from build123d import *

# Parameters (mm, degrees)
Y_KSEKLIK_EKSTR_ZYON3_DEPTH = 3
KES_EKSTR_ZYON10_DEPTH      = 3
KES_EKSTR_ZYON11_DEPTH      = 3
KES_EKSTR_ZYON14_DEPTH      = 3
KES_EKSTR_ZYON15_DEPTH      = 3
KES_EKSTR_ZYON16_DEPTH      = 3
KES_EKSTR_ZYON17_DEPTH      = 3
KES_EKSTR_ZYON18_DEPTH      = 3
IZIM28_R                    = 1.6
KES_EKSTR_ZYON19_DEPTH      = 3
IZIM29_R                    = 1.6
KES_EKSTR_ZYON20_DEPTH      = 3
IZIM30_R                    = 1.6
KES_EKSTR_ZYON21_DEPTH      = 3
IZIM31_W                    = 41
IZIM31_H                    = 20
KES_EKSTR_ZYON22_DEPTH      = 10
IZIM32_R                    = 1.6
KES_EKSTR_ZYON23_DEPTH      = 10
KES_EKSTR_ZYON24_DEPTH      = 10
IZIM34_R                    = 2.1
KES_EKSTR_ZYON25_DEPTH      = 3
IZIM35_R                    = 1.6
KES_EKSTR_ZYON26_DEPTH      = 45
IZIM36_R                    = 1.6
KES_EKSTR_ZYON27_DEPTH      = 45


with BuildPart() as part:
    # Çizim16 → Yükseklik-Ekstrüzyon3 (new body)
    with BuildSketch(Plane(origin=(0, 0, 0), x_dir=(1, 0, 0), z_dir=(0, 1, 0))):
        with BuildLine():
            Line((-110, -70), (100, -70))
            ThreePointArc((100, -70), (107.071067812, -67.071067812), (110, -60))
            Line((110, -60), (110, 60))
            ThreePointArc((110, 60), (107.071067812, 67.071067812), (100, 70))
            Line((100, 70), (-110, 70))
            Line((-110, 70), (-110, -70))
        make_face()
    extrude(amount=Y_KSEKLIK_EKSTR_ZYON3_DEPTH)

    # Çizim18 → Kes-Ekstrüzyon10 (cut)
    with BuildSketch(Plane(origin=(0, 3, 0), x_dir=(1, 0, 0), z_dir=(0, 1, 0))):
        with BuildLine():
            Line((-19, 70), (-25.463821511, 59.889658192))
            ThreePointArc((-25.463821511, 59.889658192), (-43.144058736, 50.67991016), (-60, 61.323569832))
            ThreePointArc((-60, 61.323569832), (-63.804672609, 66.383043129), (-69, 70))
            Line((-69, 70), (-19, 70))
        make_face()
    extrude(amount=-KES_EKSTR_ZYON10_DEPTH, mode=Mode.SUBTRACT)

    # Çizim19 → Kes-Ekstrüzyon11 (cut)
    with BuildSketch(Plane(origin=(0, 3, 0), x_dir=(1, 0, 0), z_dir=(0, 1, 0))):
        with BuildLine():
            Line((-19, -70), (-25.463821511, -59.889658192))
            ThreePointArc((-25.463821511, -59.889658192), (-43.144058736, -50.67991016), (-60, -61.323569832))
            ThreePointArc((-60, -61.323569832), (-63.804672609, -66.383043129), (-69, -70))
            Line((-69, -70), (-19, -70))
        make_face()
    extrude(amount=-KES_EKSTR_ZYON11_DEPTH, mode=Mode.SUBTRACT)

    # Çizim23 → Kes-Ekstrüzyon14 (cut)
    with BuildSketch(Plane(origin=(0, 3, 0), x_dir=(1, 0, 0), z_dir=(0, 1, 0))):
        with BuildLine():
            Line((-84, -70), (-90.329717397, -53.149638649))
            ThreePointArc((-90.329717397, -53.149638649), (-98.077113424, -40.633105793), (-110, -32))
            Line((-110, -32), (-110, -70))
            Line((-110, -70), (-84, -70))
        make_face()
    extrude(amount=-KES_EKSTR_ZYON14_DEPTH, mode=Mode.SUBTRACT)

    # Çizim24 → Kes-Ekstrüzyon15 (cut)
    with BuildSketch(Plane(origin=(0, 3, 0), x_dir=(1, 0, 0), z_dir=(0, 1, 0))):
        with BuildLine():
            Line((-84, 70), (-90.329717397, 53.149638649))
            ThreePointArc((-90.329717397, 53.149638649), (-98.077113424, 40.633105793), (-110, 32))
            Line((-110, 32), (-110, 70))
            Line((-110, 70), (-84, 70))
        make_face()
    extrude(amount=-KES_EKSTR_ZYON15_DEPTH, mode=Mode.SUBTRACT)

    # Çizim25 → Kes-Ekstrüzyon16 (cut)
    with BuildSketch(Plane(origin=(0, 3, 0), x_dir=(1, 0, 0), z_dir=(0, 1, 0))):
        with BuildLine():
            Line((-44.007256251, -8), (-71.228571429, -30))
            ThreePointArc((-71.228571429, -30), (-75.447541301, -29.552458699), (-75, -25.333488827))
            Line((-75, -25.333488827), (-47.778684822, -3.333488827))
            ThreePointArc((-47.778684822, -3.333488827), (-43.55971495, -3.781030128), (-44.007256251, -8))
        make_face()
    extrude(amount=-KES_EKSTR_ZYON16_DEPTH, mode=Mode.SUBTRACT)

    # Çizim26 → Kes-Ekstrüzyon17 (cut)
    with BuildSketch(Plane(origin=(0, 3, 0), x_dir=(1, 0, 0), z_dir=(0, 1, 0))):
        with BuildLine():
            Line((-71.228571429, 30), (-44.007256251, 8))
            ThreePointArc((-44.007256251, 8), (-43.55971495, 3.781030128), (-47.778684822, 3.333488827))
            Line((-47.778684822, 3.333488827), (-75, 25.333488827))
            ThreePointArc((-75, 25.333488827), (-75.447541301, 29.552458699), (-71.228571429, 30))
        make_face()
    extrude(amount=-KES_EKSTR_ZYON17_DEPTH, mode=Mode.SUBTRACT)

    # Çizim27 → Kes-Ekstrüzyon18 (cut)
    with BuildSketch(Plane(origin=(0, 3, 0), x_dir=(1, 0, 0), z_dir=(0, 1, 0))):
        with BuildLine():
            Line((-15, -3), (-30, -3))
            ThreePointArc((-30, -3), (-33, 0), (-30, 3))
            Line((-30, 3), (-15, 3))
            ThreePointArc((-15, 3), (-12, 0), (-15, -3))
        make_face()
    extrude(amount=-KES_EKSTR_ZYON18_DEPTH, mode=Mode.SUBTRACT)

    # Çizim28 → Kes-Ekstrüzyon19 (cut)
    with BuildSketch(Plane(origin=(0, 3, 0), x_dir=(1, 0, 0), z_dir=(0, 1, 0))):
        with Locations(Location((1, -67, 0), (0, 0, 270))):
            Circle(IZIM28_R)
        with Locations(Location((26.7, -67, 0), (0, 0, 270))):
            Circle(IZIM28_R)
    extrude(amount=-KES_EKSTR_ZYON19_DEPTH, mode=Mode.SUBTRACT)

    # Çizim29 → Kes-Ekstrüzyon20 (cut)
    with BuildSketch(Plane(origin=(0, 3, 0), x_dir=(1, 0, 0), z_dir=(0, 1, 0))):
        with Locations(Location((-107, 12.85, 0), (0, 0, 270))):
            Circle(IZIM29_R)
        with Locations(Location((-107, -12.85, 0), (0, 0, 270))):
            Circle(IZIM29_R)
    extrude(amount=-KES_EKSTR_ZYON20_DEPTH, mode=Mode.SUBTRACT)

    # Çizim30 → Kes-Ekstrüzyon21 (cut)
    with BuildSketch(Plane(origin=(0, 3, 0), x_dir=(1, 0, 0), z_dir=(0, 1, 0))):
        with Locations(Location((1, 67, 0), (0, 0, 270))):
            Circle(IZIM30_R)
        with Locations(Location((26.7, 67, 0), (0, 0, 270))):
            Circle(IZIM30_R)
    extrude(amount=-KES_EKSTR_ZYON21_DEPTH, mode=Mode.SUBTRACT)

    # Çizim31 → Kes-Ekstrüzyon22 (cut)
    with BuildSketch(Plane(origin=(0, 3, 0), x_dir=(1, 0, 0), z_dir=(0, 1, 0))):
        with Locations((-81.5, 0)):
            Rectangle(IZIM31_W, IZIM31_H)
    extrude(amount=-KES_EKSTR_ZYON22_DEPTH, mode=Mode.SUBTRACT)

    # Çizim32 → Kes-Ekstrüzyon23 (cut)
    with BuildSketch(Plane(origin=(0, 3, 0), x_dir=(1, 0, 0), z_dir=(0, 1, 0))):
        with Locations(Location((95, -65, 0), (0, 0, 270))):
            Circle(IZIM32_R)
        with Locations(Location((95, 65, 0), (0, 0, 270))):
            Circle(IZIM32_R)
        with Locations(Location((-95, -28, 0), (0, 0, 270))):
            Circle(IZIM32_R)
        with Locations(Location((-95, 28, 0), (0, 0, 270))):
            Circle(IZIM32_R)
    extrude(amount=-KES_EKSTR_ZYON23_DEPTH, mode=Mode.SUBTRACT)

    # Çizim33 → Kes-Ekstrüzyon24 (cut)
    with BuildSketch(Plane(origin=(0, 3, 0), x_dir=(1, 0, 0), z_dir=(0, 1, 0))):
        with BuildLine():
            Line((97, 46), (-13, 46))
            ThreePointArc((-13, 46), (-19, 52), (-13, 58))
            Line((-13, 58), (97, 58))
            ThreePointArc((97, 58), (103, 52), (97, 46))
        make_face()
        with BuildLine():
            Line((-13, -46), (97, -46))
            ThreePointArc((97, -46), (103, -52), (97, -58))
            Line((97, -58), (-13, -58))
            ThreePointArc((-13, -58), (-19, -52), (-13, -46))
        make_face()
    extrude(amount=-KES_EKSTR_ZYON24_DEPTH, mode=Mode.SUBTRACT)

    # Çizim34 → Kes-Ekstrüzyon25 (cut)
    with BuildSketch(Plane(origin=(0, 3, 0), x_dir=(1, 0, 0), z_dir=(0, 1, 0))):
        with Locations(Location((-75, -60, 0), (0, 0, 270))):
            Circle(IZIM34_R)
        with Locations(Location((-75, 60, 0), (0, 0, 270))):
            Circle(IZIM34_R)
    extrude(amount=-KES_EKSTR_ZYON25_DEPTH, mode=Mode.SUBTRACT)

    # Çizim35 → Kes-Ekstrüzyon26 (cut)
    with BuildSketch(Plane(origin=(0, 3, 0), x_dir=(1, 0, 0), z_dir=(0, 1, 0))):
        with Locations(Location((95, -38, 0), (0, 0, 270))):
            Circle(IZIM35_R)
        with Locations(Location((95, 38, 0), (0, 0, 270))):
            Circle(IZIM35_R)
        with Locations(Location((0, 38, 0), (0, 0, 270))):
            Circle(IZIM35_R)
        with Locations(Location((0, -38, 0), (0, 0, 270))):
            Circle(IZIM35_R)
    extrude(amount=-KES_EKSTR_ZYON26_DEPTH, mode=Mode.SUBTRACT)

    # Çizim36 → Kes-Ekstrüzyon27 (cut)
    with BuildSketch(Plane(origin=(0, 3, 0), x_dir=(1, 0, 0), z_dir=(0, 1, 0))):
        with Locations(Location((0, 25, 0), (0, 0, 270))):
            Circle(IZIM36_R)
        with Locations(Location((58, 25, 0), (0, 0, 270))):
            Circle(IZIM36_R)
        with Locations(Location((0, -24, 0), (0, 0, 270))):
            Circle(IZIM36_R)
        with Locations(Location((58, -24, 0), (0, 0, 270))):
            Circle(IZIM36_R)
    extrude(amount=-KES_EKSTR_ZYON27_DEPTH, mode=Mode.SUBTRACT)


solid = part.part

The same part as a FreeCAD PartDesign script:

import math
import FreeCAD as App
import Part
import Sketcher
from FreeCAD import Vector
Q = App.Units.Quantity


def add_polygon(sketch, points):
    """Adds a closed chain of lines whose ends are joined by coincident constraints."""
    first, n = sketch.GeometryCount, len(points)
    for a, b in zip(points, points[1:] + points[:1]):
        sketch.addGeometry(Part.LineSegment(App.Vector(*a, 0), App.Vector(*b, 0)), False)
    for i in range(n):
        sketch.addConstraint(Sketcher.Constraint("Coincident", first + i, 2, first + (i + 1) % n, 1))

doc = App.newDocument("Part")
body = doc.addObject("PartDesign::Body", "Body")

sketch1 = doc.addObject("Sketcher::SketchObject", "Sketch")
body.addObject(sketch1)
sketch1.AttachmentSupport = (doc.XZ_Plane, [""])
sketch1.MapMode = "FlatFace"
sketch1.addGeometry(Part.LineSegment(Vector(-110, 70, 0), Vector(100, 70, 0)), False)
sketch1.addGeometry(Part.ArcOfCircle(Part.Circle(Vector(100, 60, 0), Vector(0, 0, 1), 10), math.radians(0), math.radians(90)), False)
sketch1.addGeometry(Part.LineSegment(Vector(110, 60, 0), Vector(110, -60, 0)), False)
sketch1.addGeometry(Part.ArcOfCircle(Part.Circle(Vector(100, -60, 0), Vector(0, 0, 1), 10), math.radians(-90), math.radians(0)), False)
sketch1.addGeometry(Part.LineSegment(Vector(100, -70, 0), Vector(-110, -70, 0)), False)
sketch1.addGeometry(Part.LineSegment(Vector(-110, -70, 0), Vector(-110, 70, 0)), False)
sketch1.addConstraint(Sketcher.Constraint("Tangent", 0, 2, 1, 2))
sketch1.addConstraint(Sketcher.Constraint("Tangent", 1, 1, 2, 1))
sketch1.addConstraint(Sketcher.Constraint("Tangent", 2, 2, 3, 2))
sketch1.addConstraint(Sketcher.Constraint("Tangent", 3, 1, 4, 1))
sketch1.addConstraint(Sketcher.Constraint("Coincident", 4, 2, 5, 1))
sketch1.addConstraint(Sketcher.Constraint("Coincident", 5, 2, 0, 1))
sketch1.addConstraint(Sketcher.Constraint("Horizontal", 0))
sketch1.addConstraint(Sketcher.Constraint("Vertical", 2))
sketch1.addConstraint(Sketcher.Constraint("Horizontal", 4))
sketch1.addConstraint(Sketcher.Constraint("Vertical", 5))
sketch1.addConstraint(Sketcher.Constraint("Equal", 1, 3))
sketch1.addConstraint(Sketcher.Constraint("Radius", 1, Q("10 mm")))
sketch1.addConstraint(Sketcher.Constraint("DistanceX", 0, 1, 0, 2, Q("210 mm")))
sketch1.addConstraint(Sketcher.Constraint("DistanceY", 2, 2, 2, 1, Q("120 mm")))
sketch1.addConstraint(Sketcher.Constraint("DistanceX", -1, 1, 1, 3, Q("100 mm")))
sketch1.addConstraint(Sketcher.Constraint("DistanceY", -1, 1, 1, 3, Q("60 mm")))
pad1 = doc.addObject("PartDesign::Pad", "Pad")
body.addObject(pad1)
pad1.Profile = sketch1
pad1.Length = 3
pad1.Reversed = True

sketch2 = doc.addObject("Sketcher::SketchObject", "Sketch001")
body.addObject(sketch2)
sketch2.AttachmentSupport = (doc.XZ_Plane, [""])
sketch2.MapMode = "FlatFace"
sketch2.AttachmentOffset = App.Placement(Vector(0, 0, -3), App.Rotation())
sketch2.addGeometry(Part.LineSegment(Vector(-25, -60, 0), Vector(-19, -70, 0)), False)
sketch2.addGeometry(Part.LineSegment(Vector(-19, -70, 0), Vector(-69, -70, 0)), False)
sketch2.addGeometry(Part.ArcOfCircle(Part.Circle(Vector(-78, -52, 0), Vector(0, 0, 1), 20), math.radians(-64), math.radians(-28)), False)
sketch2.addGeometry(Part.ArcOfCircle(Part.Circle(Vector(-42, -71, 0), Vector(0, 0, 1), 20), math.radians(33), math.radians(152)), False)
sketch2.addConstraint(Sketcher.Constraint("Coincident", 0, 2, 1, 1))
sketch2.addConstraint(Sketcher.Constraint("Coincident", 1, 2, 2, 1))
sketch2.addConstraint(Sketcher.Constraint("Tangent", 2, 2, 3, 2))
sketch2.addConstraint(Sketcher.Constraint("Tangent", 3, 1, 0, 1))
sketch2.addConstraint(Sketcher.Constraint("Horizontal", 1))
sketch2.addConstraint(Sketcher.Constraint("Equal", 2, 3))
sketch2.addConstraint(Sketcher.Constraint("Radius", 2, Q("20 mm")))
sketch2.addConstraint(Sketcher.Constraint("DistanceX", 1, 2, 1, 1, Q("50 mm")))
sketch2.addConstraint(Sketcher.Constraint("Distance", 0, Q("12 mm")))
sketch2.addConstraint(Sketcher.Constraint("DistanceX", 0, 2, -1, 1, Q("19 mm")))
sketch2.addConstraint(Sketcher.Constraint("DistanceY", 0, 2, -1, 1, Q("70 mm")))
sketch2.addConstraint(Sketcher.Constraint("DistanceX", 2, 2, -1, 1, Q("60 mm")))
pocket1 = doc.addObject("PartDesign::Pocket", "Pocket")
body.addObject(pocket1)
pocket1.Profile = sketch2
pocket1.Length = 3
pocket1.Reversed = True

sketch3 = doc.addObject("Sketcher::SketchObject", "Sketch002")
body.addObject(sketch3)
sketch3.AttachmentSupport = (doc.XZ_Plane, [""])
sketch3.MapMode = "FlatFace"
sketch3.AttachmentOffset = App.Placement(Vector(0, 0, -3), App.Rotation())
sketch3.addGeometry(Part.LineSegment(Vector(-19, 70, 0), Vector(-25, 60, 0)), False)
sketch3.addGeometry(Part.ArcOfCircle(Part.Circle(Vector(-42, 71, 0), Vector(0, 0, 1), 20), math.radians(-152), math.radians(-33)), False)
sketch3.addGeometry(Part.ArcOfCircle(Part.Circle(Vector(-78, 52, 0), Vector(0, 0, 1), 20), math.radians(28), math.radians(64)), False)
sketch3.addGeometry(Part.LineSegment(Vector(-69, 70, 0), Vector(-19, 70, 0)), False)
sketch3.addConstraint(Sketcher.Constraint("Tangent", 0, 2, 1, 2))
sketch3.addConstraint(Sketcher.Constraint("Tangent", 1, 1, 2, 1))
sketch3.addConstraint(Sketcher.Constraint("Coincident", 2, 2, 3, 1))
sketch3.addConstraint(Sketcher.Constraint("Coincident", 3, 2, 0, 1))
sketch3.addConstraint(Sketcher.Constraint("Horizontal", 3))
sketch3.addConstraint(Sketcher.Constraint("Equal", 1, 2))
sketch3.addConstraint(Sketcher.Constraint("Radius", 1, Q("20 mm")))
sketch3.addConstraint(Sketcher.Constraint("DistanceX", 3, 1, 3, 2, Q("50 mm")))
sketch3.addConstraint(Sketcher.Constraint("Distance", 0, Q("12 mm")))
sketch3.addConstraint(Sketcher.Constraint("DistanceX", 1, 1, -1, 1, Q("60 mm")))
sketch3.addConstraint(Sketcher.Constraint("DistanceX", 2, 2, -1, 1, Q("69 mm")))
sketch3.addConstraint(Sketcher.Constraint("DistanceY", -1, 1, 2, 2, Q("70 mm")))
pocket2 = doc.addObject("PartDesign::Pocket", "Pocket001")
body.addObject(pocket2)
pocket2.Profile = sketch3
pocket2.Length = 3
pocket2.Reversed = True

sketch4 = doc.addObject("Sketcher::SketchObject", "Sketch003")
body.addObject(sketch4)
sketch4.AttachmentSupport = (doc.XZ_Plane, [""])
sketch4.MapMode = "FlatFace"
sketch4.AttachmentOffset = App.Placement(Vector(0, 0, -3), App.Rotation())
sketch4.addGeometry(Part.LineSegment(Vector(-84, 70, 0), Vector(-90, 53, 0)), False)
sketch4.addGeometry(Part.ArcOfCircle(Part.Circle(Vector(-126, 67, 0), Vector(0, 0, 1), 38), math.radians(-65), math.radians(-21)), False)
sketch4.addGeometry(Part.LineSegment(Vector(-110, 32, 0), Vector(-110, 70, 0)), False)
sketch4.addGeometry(Part.LineSegment(Vector(-110, 70, 0), Vector(-84, 70, 0)), False)
sketch4.addConstraint(Sketcher.Constraint("Tangent", 0, 2, 1, 2))
sketch4.addConstraint(Sketcher.Constraint("Coincident", 1, 1, 2, 1))
sketch4.addConstraint(Sketcher.Constraint("Coincident", 2, 2, 3, 1))
sketch4.addConstraint(Sketcher.Constraint("Coincident", 3, 2, 0, 1))
sketch4.addConstraint(Sketcher.Constraint("Vertical", 2))
sketch4.addConstraint(Sketcher.Constraint("Horizontal", 3))
sketch4.addConstraint(Sketcher.Constraint("Radius", 1, Q("38 mm")))
sketch4.addConstraint(Sketcher.Constraint("DistanceX", 3, 1, 3, 2, Q("26 mm")))
sketch4.addConstraint(Sketcher.Constraint("DistanceY", 2, 1, 2, 2, Q("38 mm")))
sketch4.addConstraint(Sketcher.Constraint("Distance", 0, Q("18 mm")))
sketch4.addConstraint(Sketcher.Constraint("DistanceX", 1, 1, -1, 1, Q("110 mm")))
sketch4.addConstraint(Sketcher.Constraint("DistanceY", -1, 1, 1, 1, Q("32 mm")))
pocket3 = doc.addObject("PartDesign::Pocket", "Pocket002")
body.addObject(pocket3)
pocket3.Profile = sketch4
pocket3.Length = 3
pocket3.Reversed = True

sketch5 = doc.addObject("Sketcher::SketchObject", "Sketch004")
body.addObject(sketch5)
sketch5.AttachmentSupport = (doc.XZ_Plane, [""])
sketch5.MapMode = "FlatFace"
sketch5.AttachmentOffset = App.Placement(Vector(0, 0, -3), App.Rotation())
sketch5.addGeometry(Part.LineSegment(Vector(-90, -53, 0), Vector(-84, -70, 0)), False)
sketch5.addGeometry(Part.LineSegment(Vector(-84, -70, 0), Vector(-110, -70, 0)), False)
sketch5.addGeometry(Part.LineSegment(Vector(-110, -70, 0), Vector(-110, -32, 0)), False)
sketch5.addGeometry(Part.ArcOfCircle(Part.Circle(Vector(-126, -67, 0), Vector(0, 0, 1), 38), math.radians(21), math.radians(65)), False)
sketch5.addConstraint(Sketcher.Constraint("Coincident", 0, 2, 1, 1))
sketch5.addConstraint(Sketcher.Constraint("Coincident", 1, 2, 2, 1))
sketch5.addConstraint(Sketcher.Constraint("Coincident", 2, 2, 3, 2))
sketch5.addConstraint(Sketcher.Constraint("Tangent", 3, 1, 0, 1))
sketch5.addConstraint(Sketcher.Constraint("Horizontal", 1))
sketch5.addConstraint(Sketcher.Constraint("Vertical", 2))
sketch5.addConstraint(Sketcher.Constraint("Radius", 3, Q("38 mm")))
sketch5.addConstraint(Sketcher.Constraint("DistanceX", 1, 2, 1, 1, Q("26 mm")))
sketch5.addConstraint(Sketcher.Constraint("DistanceY", 2, 1, 2, 2, Q("38 mm")))
sketch5.addConstraint(Sketcher.Constraint("Distance", 0, Q("18 mm")))
sketch5.addConstraint(Sketcher.Constraint("DistanceX", 0, 2, -1, 1, Q("84 mm")))
sketch5.addConstraint(Sketcher.Constraint("DistanceY", 0, 2, -1, 1, Q("70 mm")))
pocket4 = doc.addObject("PartDesign::Pocket", "Pocket003")
body.addObject(pocket4)
pocket4.Profile = sketch5
pocket4.Length = 3
pocket4.Reversed = True

sketch6 = doc.addObject("Sketcher::SketchObject", "Sketch005")
body.addObject(sketch6)
sketch6.AttachmentSupport = (doc.XZ_Plane, [""])
sketch6.MapMode = "FlatFace"
sketch6.AttachmentOffset = App.Placement(Vector(0, 0, -3), App.Rotation())
sketch6.addGeometry(Part.LineSegment(Vector(-71.2, 30, 0), Vector(-44, 8, 0)), False)
sketch6.addGeometry(Part.ArcOfCircle(Part.Circle(Vector(-45.9, 5.7, 0), Vector(0, 0, 1), 3), math.radians(-129), math.radians(51)), False)
sketch6.addGeometry(Part.LineSegment(Vector(-47.8, 3.3, 0), Vector(-75, 25.3, 0)), False)
sketch6.addGeometry(Part.ArcOfCircle(Part.Circle(Vector(-73.1, 27.7, 0), Vector(0, 0, 1), 3), math.radians(51), math.radians(231)), False)
sketch6.addConstraint(Sketcher.Constraint("Tangent", 0, 2, 1, 2))
sketch6.addConstraint(Sketcher.Constraint("Tangent", 1, 1, 2, 1))
sketch6.addConstraint(Sketcher.Constraint("Tangent", 2, 2, 3, 2))
sketch6.addConstraint(Sketcher.Constraint("Tangent", 3, 1, 0, 1))
sketch6.addConstraint(Sketcher.Constraint("Equal", 1, 3))
sketch6.addConstraint(Sketcher.Constraint("Radius", 1, Q("3 mm")))
sketch6.addConstraint(Sketcher.Constraint("Distance", 0, Q("35 mm")))
sketch6.addConstraint(Sketcher.Constraint("DistanceY", -1, 1, 0, 2, Q("8 mm")))
sketch6.addConstraint(Sketcher.Constraint("DistanceX", 2, 2, -1, 1, Q("75 mm")))
sketch6.addConstraint(Sketcher.Constraint("DistanceY", -1, 1, 3, 1, Q("30 mm")))
pocket5 = doc.addObject("PartDesign::Pocket", "Pocket004")
body.addObject(pocket5)
pocket5.Profile = sketch6
pocket5.Length = 3
pocket5.Reversed = True

sketch7 = doc.addObject("Sketcher::SketchObject", "Sketch006")
body.addObject(sketch7)
sketch7.AttachmentSupport = (doc.XZ_Plane, [""])
sketch7.MapMode = "FlatFace"
sketch7.AttachmentOffset = App.Placement(Vector(0, 0, -3), App.Rotation())
sketch7.addGeometry(Part.LineSegment(Vector(-44, -8, 0), Vector(-71.2, -30, 0)), False)
sketch7.addGeometry(Part.ArcOfCircle(Part.Circle(Vector(-73.1, -27.7, 0), Vector(0, 0, 1), 3), math.radians(129), math.radians(309)), False)
sketch7.addGeometry(Part.LineSegment(Vector(-75, -25.3, 0), Vector(-47.8, -3.3, 0)), False)
sketch7.addGeometry(Part.ArcOfCircle(Part.Circle(Vector(-45.9, -5.7, 0), Vector(0, 0, 1), 3), math.radians(-51), math.radians(129)), False)
sketch7.addConstraint(Sketcher.Constraint("Tangent", 0, 2, 1, 2))
sketch7.addConstraint(Sketcher.Constraint("Tangent", 1, 1, 2, 1))
sketch7.addConstraint(Sketcher.Constraint("Tangent", 2, 2, 3, 2))
sketch7.addConstraint(Sketcher.Constraint("Tangent", 3, 1, 0, 1))
sketch7.addConstraint(Sketcher.Constraint("Equal", 1, 3))
sketch7.addConstraint(Sketcher.Constraint("Radius", 1, Q("3 mm")))
sketch7.addConstraint(Sketcher.Constraint("Distance", 0, Q("35 mm")))
sketch7.addConstraint(Sketcher.Constraint("DistanceY", 0, 2, -1, 1, Q("30 mm")))
sketch7.addConstraint(Sketcher.Constraint("DistanceX", 1, 1, -1, 1, Q("75 mm")))
sketch7.addConstraint(Sketcher.Constraint("DistanceY", 3, 1, -1, 1, Q("8 mm")))
pocket6 = doc.addObject("PartDesign::Pocket", "Pocket005")
body.addObject(pocket6)
pocket6.Profile = sketch7
pocket6.Length = 3
pocket6.Reversed = True

sketch8 = doc.addObject("Sketcher::SketchObject", "Sketch007")
body.addObject(sketch8)
sketch8.AttachmentSupport = (doc.XZ_Plane, [""])
sketch8.MapMode = "FlatFace"
sketch8.AttachmentOffset = App.Placement(Vector(0, 0, -3), App.Rotation())
sketch8.addGeometry(Part.LineSegment(Vector(-30, 3, 0), Vector(-15, 3, 0)), False)
sketch8.addGeometry(Part.ArcOfCircle(Part.Circle(Vector(-15, 0, 0), Vector(0, 0, 1), 3), math.radians(-90), math.radians(90)), False)
sketch8.addGeometry(Part.LineSegment(Vector(-15, -3, 0), Vector(-30, -3, 0)), False)
sketch8.addGeometry(Part.ArcOfCircle(Part.Circle(Vector(-30, 0, 0), Vector(0, 0, 1), 3), math.radians(90), math.radians(270)), False)
sketch8.addConstraint(Sketcher.Constraint("Tangent", 0, 2, 1, 2))
sketch8.addConstraint(Sketcher.Constraint("Tangent", 1, 1, 2, 1))
sketch8.addConstraint(Sketcher.Constraint("Tangent", 2, 2, 3, 2))
sketch8.addConstraint(Sketcher.Constraint("Tangent", 3, 1, 0, 1))
sketch8.addConstraint(Sketcher.Constraint("Horizontal", 0))
sketch8.addConstraint(Sketcher.Constraint("Horizontal", 2))
sketch8.addConstraint(Sketcher.Constraint("PointOnObject", 1, 3, -1))
sketch8.addConstraint(Sketcher.Constraint("Radius", 1, Q("3 mm")))
sketch8.addConstraint(Sketcher.Constraint("DistanceX", 0, 1, 0, 2, Q("15 mm")))
sketch8.addConstraint(Sketcher.Constraint("DistanceX", 1, 3, -1, 1, Q("15 mm")))
pocket7 = doc.addObject("PartDesign::Pocket", "Pocket006")
body.addObject(pocket7)
pocket7.Profile = sketch8
pocket7.Length = 3
pocket7.Reversed = True

sketch9 = doc.addObject("Sketcher::SketchObject", "Sketch008")
body.addObject(sketch9)
sketch9.AttachmentSupport = (doc.XZ_Plane, [""])
sketch9.MapMode = "FlatFace"
sketch9.AttachmentOffset = App.Placement(Vector(0, 0, -3), App.Rotation())
sketch9.addGeometry(Part.Circle(Vector(1, 67, 0), Vector(0, 0, 1), 1.6), False)
sketch9.addGeometry(Part.Circle(Vector(26.7, 67, 0), Vector(0, 0, 1), 1.6), False)
sketch9.addConstraint(Sketcher.Constraint("Equal", 0, 1))
sketch9.addConstraint(Sketcher.Constraint("Horizontal", 0, 3, 1, 3))
sketch9.addConstraint(Sketcher.Constraint("Diameter", 0, Q("3.2 mm")))
sketch9.addConstraint(Sketcher.Constraint("DistanceX", -1, 1, 0, 3, Q("1 mm")))
sketch9.addConstraint(Sketcher.Constraint("DistanceY", -1, 1, 0, 3, Q("67 mm")))
sketch9.addConstraint(Sketcher.Constraint("DistanceX", -1, 1, 1, 3, Q("26.7 mm")))
pocket8 = doc.addObject("PartDesign::Pocket", "Pocket007")
body.addObject(pocket8)
pocket8.Profile = sketch9
pocket8.Length = 3
pocket8.Reversed = True

sketch10 = doc.addObject("Sketcher::SketchObject", "Sketch009")
body.addObject(sketch10)
sketch10.AttachmentSupport = (doc.XZ_Plane, [""])
sketch10.MapMode = "FlatFace"
sketch10.AttachmentOffset = App.Placement(Vector(0, 0, -3), App.Rotation())
sketch10.addGeometry(Part.Circle(Vector(-107, -12.8, 0), Vector(0, 0, 1), 1.6), False)
sketch10.addGeometry(Part.Circle(Vector(-107, 12.8, 0), Vector(0, 0, 1), 1.6), False)
sketch10.addConstraint(Sketcher.Constraint("Equal", 0, 1))
sketch10.addConstraint(Sketcher.Constraint("Symmetric", 0, 3, 1, 3, -1))
sketch10.addConstraint(Sketcher.Constraint("Diameter", 0, Q("3.2 mm")))
sketch10.addConstraint(Sketcher.Constraint("DistanceX", 0, 3, -1, 1, Q("107 mm")))
sketch10.addConstraint(Sketcher.Constraint("DistanceY", 0, 3, 1, 3, Q("25.7 mm")))
pocket9 = doc.addObject("PartDesign::Pocket", "Pocket008")
body.addObject(pocket9)
pocket9.Profile = sketch10
pocket9.Length = 3
pocket9.Reversed = True

sketch11 = doc.addObject("Sketcher::SketchObject", "Sketch010")
body.addObject(sketch11)
sketch11.AttachmentSupport = (doc.XZ_Plane, [""])
sketch11.MapMode = "FlatFace"
sketch11.AttachmentOffset = App.Placement(Vector(0, 0, -3), App.Rotation())
sketch11.addGeometry(Part.Circle(Vector(1, -67, 0), Vector(0, 0, 1), 1.6), False)
sketch11.addGeometry(Part.Circle(Vector(26.7, -67, 0), Vector(0, 0, 1), 1.6), False)
sketch11.addConstraint(Sketcher.Constraint("Equal", 0, 1))
sketch11.addConstraint(Sketcher.Constraint("Horizontal", 0, 3, 1, 3))
sketch11.addConstraint(Sketcher.Constraint("Diameter", 0, Q("3.2 mm")))
sketch11.addConstraint(Sketcher.Constraint("DistanceX", -1, 1, 0, 3, Q("1 mm")))
sketch11.addConstraint(Sketcher.Constraint("DistanceY", 0, 3, -1, 1, Q("67 mm")))
sketch11.addConstraint(Sketcher.Constraint("DistanceX", -1, 1, 1, 3, Q("26.7 mm")))
pocket10 = doc.addObject("PartDesign::Pocket", "Pocket009")
body.addObject(pocket10)
pocket10.Profile = sketch11
pocket10.Length = 3
pocket10.Reversed = True

sketch12 = doc.addObject("Sketcher::SketchObject", "Sketch011")
body.addObject(sketch12)
sketch12.AttachmentSupport = (doc.XZ_Plane, [""])
sketch12.MapMode = "FlatFace"
sketch12.AttachmentOffset = App.Placement(Vector(0, 0, -3), App.Rotation())
add_polygon(sketch12, [(-102, -10), (-102, 10), (-61, 10), (-61, -10)])
sketch12.addConstraint(Sketcher.Constraint("Vertical", 0))
sketch12.addConstraint(Sketcher.Constraint("Horizontal", 1))
sketch12.addConstraint(Sketcher.Constraint("Vertical", 2))
sketch12.addConstraint(Sketcher.Constraint("Horizontal", 3))
sketch12.addConstraint(Sketcher.Constraint("DistanceX", 1, 1, 1, 2, Q("41 mm")))
sketch12.addConstraint(Sketcher.Constraint("DistanceY", 0, 1, 0, 2, Q("20 mm")))
sketch12.addConstraint(Sketcher.Constraint("DistanceX", 0, 2, -1, 1, Q("102 mm")))
sketch12.addConstraint(Sketcher.Constraint("DistanceY", -1, 1, 0, 2, Q("10 mm")))
pocket11 = doc.addObject("PartDesign::Pocket", "Pocket010")
body.addObject(pocket11)
pocket11.Profile = sketch12
pocket11.Length = 10
pocket11.Reversed = True

sketch13 = doc.addObject("Sketcher::SketchObject", "Sketch012")
body.addObject(sketch13)
sketch13.AttachmentSupport = (doc.XZ_Plane, [""])
sketch13.MapMode = "FlatFace"
sketch13.AttachmentOffset = App.Placement(Vector(0, 0, -3), App.Rotation())
sketch13.addGeometry(Part.Circle(Vector(95, 65, 0), Vector(0, 0, 1), 1.6), False)
sketch13.addGeometry(Part.Circle(Vector(95, -65, 0), Vector(0, 0, 1), 1.6), False)
sketch13.addGeometry(Part.Circle(Vector(-95, 28, 0), Vector(0, 0, 1), 1.6), False)
sketch13.addGeometry(Part.Circle(Vector(-95, -28, 0), Vector(0, 0, 1), 1.6), False)
sketch13.addConstraint(Sketcher.Constraint("Equal", 0, 1))
sketch13.addConstraint(Sketcher.Constraint("Equal", 1, 2))
sketch13.addConstraint(Sketcher.Constraint("Equal", 2, 3))
sketch13.addConstraint(Sketcher.Constraint("Symmetric", 0, 3, 1, 3, -1))
sketch13.addConstraint(Sketcher.Constraint("Symmetric", 2, 3, 3, 3, -1))
sketch13.addConstraint(Sketcher.Constraint("Diameter", 0, Q("3.2 mm")))
sketch13.addConstraint(Sketcher.Constraint("DistanceX", -1, 1, 0, 3, Q("95 mm")))
sketch13.addConstraint(Sketcher.Constraint("DistanceY", -1, 1, 0, 3, Q("65 mm")))
sketch13.addConstraint(Sketcher.Constraint("DistanceX", 2, 3, -1, 1, Q("95 mm")))
sketch13.addConstraint(Sketcher.Constraint("DistanceY", -1, 1, 2, 3, Q("28 mm")))
pocket12 = doc.addObject("PartDesign::Pocket", "Pocket011")
body.addObject(pocket12)
pocket12.Profile = sketch13
pocket12.Length = 10
pocket12.Reversed = True

sketch14 = doc.addObject("Sketcher::SketchObject", "Sketch013")
body.addObject(sketch14)
sketch14.AttachmentSupport = (doc.XZ_Plane, [""])
sketch14.MapMode = "FlatFace"
sketch14.AttachmentOffset = App.Placement(Vector(0, 0, -3), App.Rotation())
sketch14.addGeometry(Part.LineSegment(Vector(-13, -46, 0), Vector(97, -46, 0)), False)
sketch14.addGeometry(Part.ArcOfCircle(Part.Circle(Vector(97, -52, 0), Vector(0, 0, 1), 6), math.radians(-90), math.radians(90)), False)
sketch14.addGeometry(Part.LineSegment(Vector(97, -58, 0), Vector(-13, -58, 0)), False)
sketch14.addGeometry(Part.ArcOfCircle(Part.Circle(Vector(-13, -52, 0), Vector(0, 0, 1), 6), math.radians(90), math.radians(270)), False)
sketch14.addGeometry(Part.LineSegment(Vector(97, 46, 0), Vector(-13, 46, 0)), False)
sketch14.addGeometry(Part.ArcOfCircle(Part.Circle(Vector(-13, 52, 0), Vector(0, 0, 1), 6), math.radians(90), math.radians(270)), False)
sketch14.addGeometry(Part.LineSegment(Vector(-13, 58, 0), Vector(97, 58, 0)), False)
sketch14.addGeometry(Part.ArcOfCircle(Part.Circle(Vector(97, 52, 0), Vector(0, 0, 1), 6), math.radians(-90), math.radians(90)), False)
sketch14.addConstraint(Sketcher.Constraint("Tangent", 0, 2, 1, 2))
sketch14.addConstraint(Sketcher.Constraint("Tangent", 1, 1, 2, 1))
sketch14.addConstraint(Sketcher.Constraint("Tangent", 2, 2, 3, 2))
sketch14.addConstraint(Sketcher.Constraint("Tangent", 3, 1, 0, 1))
sketch14.addConstraint(Sketcher.Constraint("Tangent", 4, 2, 5, 2))
sketch14.addConstraint(Sketcher.Constraint("Tangent", 5, 1, 6, 1))
sketch14.addConstraint(Sketcher.Constraint("Tangent", 6, 2, 7, 2))
sketch14.addConstraint(Sketcher.Constraint("Tangent", 7, 1, 4, 1))
sketch14.addConstraint(Sketcher.Constraint("Horizontal", 0))
sketch14.addConstraint(Sketcher.Constraint("Horizontal", 2))
sketch14.addConstraint(Sketcher.Constraint("Horizontal", 4))
sketch14.addConstraint(Sketcher.Constraint("Horizontal", 6))
sketch14.addConstraint(Sketcher.Constraint("Equal", 3, 5))
sketch14.addConstraint(Sketcher.Constraint("Symmetric", 3, 3, 5, 3, -1))
sketch14.addConstraint(Sketcher.Constraint("Vertical", 1, 3, 7, 3))
sketch14.addConstraint(Sketcher.Constraint("Radius", 1, Q("6 mm")))
sketch14.addConstraint(Sketcher.Constraint("DistanceX", 0, 1, 0, 2, Q("110 mm")))
sketch14.addConstraint(Sketcher.Constraint("DistanceX", -1, 1, 1, 3, Q("97 mm")))
sketch14.addConstraint(Sketcher.Constraint("DistanceY", 1, 3, -1, 1, Q("52 mm")))
pocket13 = doc.addObject("PartDesign::Pocket", "Pocket012")
body.addObject(pocket13)
pocket13.Profile = sketch14
pocket13.Length = 10
pocket13.Reversed = True

sketch15 = doc.addObject("Sketcher::SketchObject", "Sketch014")
body.addObject(sketch15)
sketch15.AttachmentSupport = (doc.XZ_Plane, [""])
sketch15.MapMode = "FlatFace"
sketch15.AttachmentOffset = App.Placement(Vector(0, 0, -3), App.Rotation())
sketch15.addGeometry(Part.Circle(Vector(-75, 60, 0), Vector(0, 0, 1), 2.1), False)
sketch15.addGeometry(Part.Circle(Vector(-75, -60, 0), Vector(0, 0, 1), 2.1), False)
sketch15.addConstraint(Sketcher.Constraint("Equal", 0, 1))
sketch15.addConstraint(Sketcher.Constraint("Symmetric", 0, 3, 1, 3, -1))
sketch15.addConstraint(Sketcher.Constraint("Diameter", 0, Q("4.2 mm")))
sketch15.addConstraint(Sketcher.Constraint("DistanceX", 0, 3, -1, 1, Q("75 mm")))
sketch15.addConstraint(Sketcher.Constraint("DistanceY", -1, 1, 0, 3, Q("60 mm")))
pocket14 = doc.addObject("PartDesign::Pocket", "Pocket013")
body.addObject(pocket14)
pocket14.Profile = sketch15
pocket14.Length = 3
pocket14.Reversed = True

sketch16 = doc.addObject("Sketcher::SketchObject", "Sketch015")
body.addObject(sketch16)
sketch16.AttachmentSupport = (doc.XZ_Plane, [""])
sketch16.MapMode = "FlatFace"
sketch16.AttachmentOffset = App.Placement(Vector(0, 0, -3), App.Rotation())
sketch16.addGeometry(Part.Circle(Vector(95, 38, 0), Vector(0, 0, 1), 1.6), False)
sketch16.addGeometry(Part.Circle(Vector(95, -38, 0), Vector(0, 0, 1), 1.6), False)
sketch16.addGeometry(Part.Circle(Vector(0, -38, 0), Vector(0, 0, 1), 1.6), False)
sketch16.addGeometry(Part.Circle(Vector(0, 38, 0), Vector(0, 0, 1), 1.6), False)
sketch16.addConstraint(Sketcher.Constraint("Equal", 0, 1))
sketch16.addConstraint(Sketcher.Constraint("Equal", 1, 2))
sketch16.addConstraint(Sketcher.Constraint("Equal", 2, 3))
sketch16.addConstraint(Sketcher.Constraint("Symmetric", 2, 3, 3, 3, -1, 1))
sketch16.addConstraint(Sketcher.Constraint("Symmetric", 0, 3, 1, 3, -1))
sketch16.addConstraint(Sketcher.Constraint("PointOnObject", 2, 3, -2))
sketch16.addConstraint(Sketcher.Constraint("Horizontal", 1, 3, 2, 3))
sketch16.addConstraint(Sketcher.Constraint("Diameter", 0, Q("3.2 mm")))
sketch16.addConstraint(Sketcher.Constraint("DistanceX", -1, 1, 0, 3, Q("95 mm")))
sketch16.addConstraint(Sketcher.Constraint("DistanceY", -1, 1, 0, 3, Q("38 mm")))
pocket15 = doc.addObject("PartDesign::Pocket", "Pocket014")
body.addObject(pocket15)
pocket15.Profile = sketch16
pocket15.Length = 45
pocket15.Reversed = True

sketch17 = doc.addObject("Sketcher::SketchObject", "Sketch016")
body.addObject(sketch17)
sketch17.AttachmentSupport = (doc.XZ_Plane, [""])
sketch17.MapMode = "FlatFace"
sketch17.AttachmentOffset = App.Placement(Vector(0, 0, -3), App.Rotation())
sketch17.addGeometry(Part.Circle(Vector(0, -25, 0), Vector(0, 0, 1), 1.6), False)
sketch17.addGeometry(Part.Circle(Vector(58, -25, 0), Vector(0, 0, 1), 1.6), False)
sketch17.addGeometry(Part.Circle(Vector(0, 24, 0), Vector(0, 0, 1), 1.6), False)
sketch17.addGeometry(Part.Circle(Vector(58, 24, 0), Vector(0, 0, 1), 1.6), False)
sketch17.addConstraint(Sketcher.Constraint("Equal", 0, 1))
sketch17.addConstraint(Sketcher.Constraint("Equal", 1, 2))
sketch17.addConstraint(Sketcher.Constraint("Equal", 2, 3))
sketch17.addConstraint(Sketcher.Constraint("PointOnObject", 0, 3, -2))
sketch17.addConstraint(Sketcher.Constraint("PointOnObject", 2, 3, -2))
sketch17.addConstraint(Sketcher.Constraint("Horizontal", 0, 3, 1, 3))
sketch17.addConstraint(Sketcher.Constraint("Horizontal", 2, 3, 3, 3))
sketch17.addConstraint(Sketcher.Constraint("Vertical", 1, 3, 3, 3))
sketch17.addConstraint(Sketcher.Constraint("Diameter", 0, Q("3.2 mm")))
sketch17.addConstraint(Sketcher.Constraint("DistanceY", 0, 3, -1, 1, Q("25 mm")))
sketch17.addConstraint(Sketcher.Constraint("DistanceX", -1, 1, 1, 3, Q("58 mm")))
sketch17.addConstraint(Sketcher.Constraint("DistanceY", -1, 1, 2, 3, Q("24 mm")))
pocket16 = doc.addObject("PartDesign::Pocket", "Pocket015")
body.addObject(pocket16)
pocket16.Profile = sketch17
pocket16.Length = 45
pocket16.Reversed = True

doc.recompute()
